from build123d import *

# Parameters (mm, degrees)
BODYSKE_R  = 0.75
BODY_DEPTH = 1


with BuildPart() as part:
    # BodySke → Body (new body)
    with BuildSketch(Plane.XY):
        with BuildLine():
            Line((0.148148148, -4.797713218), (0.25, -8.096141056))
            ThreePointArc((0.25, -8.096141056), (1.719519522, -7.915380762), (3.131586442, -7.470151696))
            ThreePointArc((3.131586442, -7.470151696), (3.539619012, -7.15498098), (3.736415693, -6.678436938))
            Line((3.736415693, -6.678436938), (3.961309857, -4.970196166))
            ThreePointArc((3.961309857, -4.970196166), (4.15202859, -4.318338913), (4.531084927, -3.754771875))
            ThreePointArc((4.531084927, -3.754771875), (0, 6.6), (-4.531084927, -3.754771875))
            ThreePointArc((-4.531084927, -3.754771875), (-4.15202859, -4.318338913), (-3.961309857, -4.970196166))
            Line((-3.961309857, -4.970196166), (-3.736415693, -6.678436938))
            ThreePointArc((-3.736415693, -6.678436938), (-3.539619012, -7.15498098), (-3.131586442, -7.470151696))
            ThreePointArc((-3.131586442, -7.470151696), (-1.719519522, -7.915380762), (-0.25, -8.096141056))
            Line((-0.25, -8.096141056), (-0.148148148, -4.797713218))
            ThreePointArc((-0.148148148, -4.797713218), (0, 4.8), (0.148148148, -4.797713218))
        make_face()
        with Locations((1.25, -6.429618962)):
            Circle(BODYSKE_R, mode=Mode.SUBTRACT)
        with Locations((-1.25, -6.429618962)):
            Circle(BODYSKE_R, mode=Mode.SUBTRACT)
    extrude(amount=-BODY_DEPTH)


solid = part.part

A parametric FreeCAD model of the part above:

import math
import FreeCAD as App
import Part
import Sketcher
Q = App.Units.Quantity

doc = App.newDocument("Part")
body = doc.addObject("PartDesign::Body", "Body")

# Sketch on XY plane
sketch1 = body.newObject("Sketcher::SketchObject", "Sketch")
sketch1.AttachmentSupport = (doc.getObject("XY_Plane"), [""])
sketch1.MapMode = "FlatFace"
sketch1.addGeometry(Part.LineSegment(App.Vector(0.148148, -4.797713, 0), App.Vector(0.25, -8.096141, 0)), False)
sketch1.addGeometry(Part.ArcOfCircle(Part.Circle(App.Vector(0, 0, 0), App.Vector(0, 0, 1), 8.1), math.radians(-88.231331), math.radians(-67.255924)), False)
sketch1.addGeometry(Part.ArcOfCircle(Part.Circle(App.Vector(2.744971, -6.547911, 0), App.Vector(0, 0, 1), 1), math.radians(-67.255924), math.radians(-7.5)), False)
sketch1.addGeometry(Part.LineSegment(App.Vector(3.736416, -6.678437, 0), App.Vector(3.96131, -4.970196, 0)), False)
sketch1.addGeometry(Part.ArcOfCircle(Part.Circle(App.Vector(6.160028, -5.259663, 0), App.Vector(0, 0, 1), 2.217691), math.radians(137.266857), math.radians(172.5)), False)
sketch1.addGeometry(Part.ArcOfCircle(Part.Circle(App.Vector(0, 0.431248, 0), App.Vector(0, 0, 1), 6.168752), math.radians(-42.733143), math.radians(222.733143)), False)
sketch1.addGeometry(Part.ArcOfCircle(Part.Circle(App.Vector(-6.160028, -5.259663, 0), App.Vector(0, 0, 1), 2.217691), math.radians(7.5), math.radians(42.733143)), False)
sketch1.addGeometry(Part.LineSegment(App.Vector(-3.96131, -4.970196, 0), App.Vector(-3.736416, -6.678437, 0)), False)
sketch1.addGeometry(Part.ArcOfCircle(Part.Circle(App.Vector(-2.744971, -6.547911, 0), App.Vector(0, 0, 1), 1), math.radians(-172.5), math.radians(-112.744076)), False)
sketch1.addGeometry(Part.ArcOfCircle(Part.Circle(App.Vector(0, 0, 0), App.Vector(0, 0, 1), 8.1), math.radians(-112.744076), math.radians(-91.768669)), False)
sketch1.addGeometry(Part.LineSegment(App.Vector(-0.25, -8.096141, 0), App.Vector(-0.148148, -4.797713, 0)), False)
sketch1.addGeometry(Part.ArcOfCircle(Part.Circle(App.Vector(0, 0, 0), App.Vector(0, 0, 1), 4.8), math.radians(-88.231331), math.radians(268.231331)), False)
sketch1.addGeometry(Part.Circle(App.Vector(-1.25, -6.429619, 0), App.Vector(0, 0, 1), 0.75), False)
sketch1.addGeometry(Part.Circle(App.Vector(1.25, -6.429619, 0), App.Vector(0, 0, 1), 0.75), False)
sketch1.addConstraint(Sketcher.Constraint("Coincident", 0, 2, 1, 1))
sketch1.addConstraint(Sketcher.Constraint("Tangent", 1, 2, 2, 1))
sketch1.addConstraint(Sketcher.Constraint("Tangent", 2, 2, 3, 1))
sketch1.addConstraint(Sketcher.Constraint("Tangent", 3, 2, 4, 2))
sketch1.addConstraint(Sketcher.Constraint("Tangent", 4, 1, 5, 1))
sketch1.addConstraint(Sketcher.Constraint("Tangent", 5, 2, 6, 2))
sketch1.addConstraint(Sketcher.Constraint("Tangent", 6, 1, 7, 1))
sketch1.addConstraint(Sketcher.Constraint("Tangent", 7, 2, 8, 1))
sketch1.addConstraint(Sketcher.Constraint("Tangent", 8, 2, 9, 1))
sketch1.addConstraint(Sketcher.Constraint("Coincident", 9, 2, 10, 1))
sketch1.addConstraint(Sketcher.Constraint("Coincident", 10, 2, 11, 2))
sketch1.addConstraint(Sketcher.Constraint("Coincident", 11, 1, 0, 1))
sketch1.addConstraint(Sketcher.Constraint("Coincident", 1, 3, -1, 1))
sketch1.addConstraint(Sketcher.Constraint("Coincident", 9, 3, -1, 1))
sketch1.addConstraint(Sketcher.Constraint("Coincident", 11, 3, -1, 1))
sketch1.addConstraint(Sketcher.Constraint("Equal", 4, 6))
sketch1.addConstraint(Sketcher.Constraint("Equal", 2, 8))
sketch1.addConstraint(Sketcher.Constraint("Equal", 1, 9))
sketch1.addConstraint(Sketcher.Constraint("Equal", 12, 13))
sketch1.addConstraint(Sketcher.Constraint("Symmetric", 4, 3, 6, 3, -2))
sketch1.addConstraint(Sketcher.Constraint("Symmetric", 12, 3, 13, 3, -2))
sketch1.addConstraint(Sketcher.Constraint("Horizontal", 2, 3, 8, 3))
sketch1.addConstraint(Sketcher.Constraint("Horizontal", 0, 2, 9, 2))
sketch1.addConstraint(Sketcher.Constraint("Horizontal", 10, 2, 11, 1))
sketch1.addConstraint(Sketcher.Constraint("Radius", 2, 1.0))
sketch1.addConstraint(Sketcher.Constraint("Diameter", 12, 1.5))
sketch1.addConstraint(Sketcher.Constraint("Radius", 1, 8.1))
sketch1.addConstraint(Sketcher.Constraint("Radius", 11, 4.8))
sketch1.addConstraint(Sketcher.Constraint("Angle", 3, Q("82.5 deg")))
sketch1.addConstraint(Sketcher.Constraint("DistanceX", 0, 2, 13, 3, 1.0))
sketch1.addConstraint(Sketcher.Constraint("DistanceX", 12, 3, 13, 3, 2.5))
sketch1.addConstraint(Sketcher.Constraint("Radius", 4, 2.217691))
sketch1.addConstraint(Sketcher.Constraint("Radius", 5, 6.168752))
sketch1.addConstraint(Sketcher.Constraint("DistanceX", 6, 3, 2, 3, 8.904999))
sketch1.addConstraint(Sketcher.Constraint("DistanceX", 1, 2, 4, 1, 1.399498))
sketch1.addConstraint(Sketcher.Constraint("DistanceY", 12, 3, -1, 1, 6.429619))
sketch1.addConstraint(Sketcher.Constraint("DistanceX", 10, 2, -1, 1, 0.148148))
pad1 = body.newObject("PartDesign::Pad", "Pad")
pad1.Profile = sketch1
pad1.Length = 1
pad1.Reversed = True

doc.recompute()
